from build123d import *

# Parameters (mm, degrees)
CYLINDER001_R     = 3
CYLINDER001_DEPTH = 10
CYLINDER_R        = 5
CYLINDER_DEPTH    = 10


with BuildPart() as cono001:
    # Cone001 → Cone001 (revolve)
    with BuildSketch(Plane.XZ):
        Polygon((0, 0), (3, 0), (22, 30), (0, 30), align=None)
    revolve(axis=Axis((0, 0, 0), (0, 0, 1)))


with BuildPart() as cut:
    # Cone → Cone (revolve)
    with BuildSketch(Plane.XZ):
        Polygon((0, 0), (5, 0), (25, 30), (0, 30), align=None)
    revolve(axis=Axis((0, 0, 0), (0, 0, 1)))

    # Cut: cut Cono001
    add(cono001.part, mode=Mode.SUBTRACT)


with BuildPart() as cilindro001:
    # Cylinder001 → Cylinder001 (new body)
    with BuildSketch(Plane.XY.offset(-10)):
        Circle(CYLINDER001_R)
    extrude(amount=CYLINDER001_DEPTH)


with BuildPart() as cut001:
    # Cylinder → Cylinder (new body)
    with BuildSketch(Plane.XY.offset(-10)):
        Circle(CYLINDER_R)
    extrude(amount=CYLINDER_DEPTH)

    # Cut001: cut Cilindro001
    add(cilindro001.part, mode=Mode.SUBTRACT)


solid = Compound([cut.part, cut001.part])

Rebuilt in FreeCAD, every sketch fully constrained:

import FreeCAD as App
import Part
import Sketcher
from FreeCAD import Vector
Q = App.Units.Quantity

doc = App.newDocument("Part")
body = doc.addObject("PartDesign::Body", "Body")

# Sketch on XZ plane
sketch1 = body.newObject("Sketcher::SketchObject", "Sketch")
sketch1.AttachmentSupport = (doc.getObject("XZ_Plane"), [""])
sketch1.MapMode = "FlatFace"
sketch1.addGeometry([
    Part.LineSegment(Vector(0, 0, 0), Vector(3, 0, 0)),
    Part.LineSegment(Vector(3, 0, 0), Vector(22, 30, 0)),
    Part.LineSegment(Vector(22, 30, 0), Vector(0, 30, 0)),
    Part.LineSegment(Vector(0, 30, 0), Vector(0, 0, 0)),
], False)
sketch1.addConstraint([
    Sketcher.Constraint("Coincident", 0, 2, 1, 1),
    Sketcher.Constraint("Coincident", 1, 2, 2, 1),
    Sketcher.Constraint("Coincident", 2, 2, 3, 1),
    Sketcher.Constraint("Coincident", 3, 2, 0, 1),
    Sketcher.Constraint("Horizontal", 0),
    Sketcher.Constraint("Horizontal", 2),
    Sketcher.Constraint("Vertical", 3),
    Sketcher.Constraint("Coincident", 3, 2, -1, 1),
    Sketcher.Constraint("DistanceX", 0, 1, 0, 2, Q("3 mm")),
    Sketcher.Constraint("DistanceX", 2, 2, 2, 1, Q("22 mm")),
    Sketcher.Constraint("DistanceY", 3, 2, 3, 1, Q("30 mm")),
])
revolution = body.newObject("PartDesign::Revolution", "Revolution")
revolution.Profile = sketch1
revolution.ReferenceAxis = (sketch1, ["V_Axis"])
revolution.Angle = 360
body2 = doc.addObject("PartDesign::Body", "Body001")

# Sketch on XZ plane
sketch2 = body2.newObject("Sketcher::SketchObject", "Sketch001")
sketch2.AttachmentSupport = (doc.getObject("XZ_Plane001"), [""])
sketch2.MapMode = "FlatFace"
sketch2.addGeometry([
    Part.LineSegment(Vector(0, 0, 0), Vector(5, 0, 0)),
    Part.LineSegment(Vector(5, 0, 0), Vector(25, 30, 0)),
    Part.LineSegment(Vector(25, 30, 0), Vector(0, 30, 0)),
    Part.LineSegment(Vector(0, 30, 0), Vector(0, 0, 0)),
], False)
sketch2.addConstraint([
    Sketcher.Constraint("Coincident", 0, 2, 1, 1),
    Sketcher.Constraint("Coincident", 1, 2, 2, 1),
    Sketcher.Constraint("Coincident", 2, 2, 3, 1),
    Sketcher.Constraint("Coincident", 3, 2, 0, 1),
    Sketcher.Constraint("Horizontal", 0),
    Sketcher.Constraint("Horizontal", 2),
    Sketcher.Constraint("Vertical", 3),
    Sketcher.Constraint("Coincident", 3, 2, -1, 1),
    Sketcher.Constraint("DistanceX", 0, 1, 0, 2, Q("5 mm")),
    Sketcher.Constraint("DistanceX", 2, 2, 2, 1, Q("25 mm")),
    Sketcher.Constraint("DistanceY", 3, 2, 3, 1, Q("30 mm")),
])
revolution2 = body2.newObject("PartDesign::Revolution", "Revolution001")
revolution2.Profile = sketch2
revolution2.ReferenceAxis = (sketch2, ["V_Axis"])
revolution2.Angle = 360
doc.recompute()

boolean = body2.newObject("PartDesign::Boolean", "Boolean")
boolean.Type = "Cut"
boolean.addObjects([body])
body3 = doc.addObject("PartDesign::Body", "Body002")

# Sketch on XY plane
sketch3 = body3.newObject("Sketcher::SketchObject", "Sketch002")
sketch3.AttachmentSupport = (doc.getObject("XY_Plane002"), [""])
sketch3.MapMode = "FlatFace"
sketch3.AttachmentOffset = App.Placement(Vector(0, 0, -10), App.Rotation())
sketch3.addGeometry(Part.Circle(Vector(0, 0, 0), Vector(0, 0, 1), 3), False)
sketch3.addConstraint([
    Sketcher.Constraint("Coincident", 0, 3, -1, 1),
    Sketcher.Constraint("Diameter", 0, Q("6 mm")),
])
pad1 = body3.newObject("PartDesign::Pad", "Pad")
pad1.Profile = sketch3
pad1.Length = 10
body4 = doc.addObject("PartDesign::Body", "Body003")

# Sketch on XY plane
sketch4 = body4.newObject("Sketcher::SketchObject", "Sketch003")
sketch4.AttachmentSupport = (doc.getObject("XY_Plane003"), [""])
sketch4.MapMode = "FlatFace"
sketch4.AttachmentOffset = App.Placement(Vector(0, 0, -10), App.Rotation())
sketch4.addGeometry(Part.Circle(Vector(0, 0, 0), Vector(0, 0, 1), 5), False)
sketch4.addConstraint([
    Sketcher.Constraint("Coincident", 0, 3, -1, 1),
    Sketcher.Constraint("Diameter", 0, Q("10 mm")),
])
pad2 = body4.newObject("PartDesign::Pad", "Pad001")
pad2.Profile = sketch4
pad2.Length = 10
doc.recompute()

boolean2 = body4.newObject("PartDesign::Boolean", "Boolean001")
boolean2.Type = "Cut"
boolean2.addObjects([body3])

doc.recompute()
